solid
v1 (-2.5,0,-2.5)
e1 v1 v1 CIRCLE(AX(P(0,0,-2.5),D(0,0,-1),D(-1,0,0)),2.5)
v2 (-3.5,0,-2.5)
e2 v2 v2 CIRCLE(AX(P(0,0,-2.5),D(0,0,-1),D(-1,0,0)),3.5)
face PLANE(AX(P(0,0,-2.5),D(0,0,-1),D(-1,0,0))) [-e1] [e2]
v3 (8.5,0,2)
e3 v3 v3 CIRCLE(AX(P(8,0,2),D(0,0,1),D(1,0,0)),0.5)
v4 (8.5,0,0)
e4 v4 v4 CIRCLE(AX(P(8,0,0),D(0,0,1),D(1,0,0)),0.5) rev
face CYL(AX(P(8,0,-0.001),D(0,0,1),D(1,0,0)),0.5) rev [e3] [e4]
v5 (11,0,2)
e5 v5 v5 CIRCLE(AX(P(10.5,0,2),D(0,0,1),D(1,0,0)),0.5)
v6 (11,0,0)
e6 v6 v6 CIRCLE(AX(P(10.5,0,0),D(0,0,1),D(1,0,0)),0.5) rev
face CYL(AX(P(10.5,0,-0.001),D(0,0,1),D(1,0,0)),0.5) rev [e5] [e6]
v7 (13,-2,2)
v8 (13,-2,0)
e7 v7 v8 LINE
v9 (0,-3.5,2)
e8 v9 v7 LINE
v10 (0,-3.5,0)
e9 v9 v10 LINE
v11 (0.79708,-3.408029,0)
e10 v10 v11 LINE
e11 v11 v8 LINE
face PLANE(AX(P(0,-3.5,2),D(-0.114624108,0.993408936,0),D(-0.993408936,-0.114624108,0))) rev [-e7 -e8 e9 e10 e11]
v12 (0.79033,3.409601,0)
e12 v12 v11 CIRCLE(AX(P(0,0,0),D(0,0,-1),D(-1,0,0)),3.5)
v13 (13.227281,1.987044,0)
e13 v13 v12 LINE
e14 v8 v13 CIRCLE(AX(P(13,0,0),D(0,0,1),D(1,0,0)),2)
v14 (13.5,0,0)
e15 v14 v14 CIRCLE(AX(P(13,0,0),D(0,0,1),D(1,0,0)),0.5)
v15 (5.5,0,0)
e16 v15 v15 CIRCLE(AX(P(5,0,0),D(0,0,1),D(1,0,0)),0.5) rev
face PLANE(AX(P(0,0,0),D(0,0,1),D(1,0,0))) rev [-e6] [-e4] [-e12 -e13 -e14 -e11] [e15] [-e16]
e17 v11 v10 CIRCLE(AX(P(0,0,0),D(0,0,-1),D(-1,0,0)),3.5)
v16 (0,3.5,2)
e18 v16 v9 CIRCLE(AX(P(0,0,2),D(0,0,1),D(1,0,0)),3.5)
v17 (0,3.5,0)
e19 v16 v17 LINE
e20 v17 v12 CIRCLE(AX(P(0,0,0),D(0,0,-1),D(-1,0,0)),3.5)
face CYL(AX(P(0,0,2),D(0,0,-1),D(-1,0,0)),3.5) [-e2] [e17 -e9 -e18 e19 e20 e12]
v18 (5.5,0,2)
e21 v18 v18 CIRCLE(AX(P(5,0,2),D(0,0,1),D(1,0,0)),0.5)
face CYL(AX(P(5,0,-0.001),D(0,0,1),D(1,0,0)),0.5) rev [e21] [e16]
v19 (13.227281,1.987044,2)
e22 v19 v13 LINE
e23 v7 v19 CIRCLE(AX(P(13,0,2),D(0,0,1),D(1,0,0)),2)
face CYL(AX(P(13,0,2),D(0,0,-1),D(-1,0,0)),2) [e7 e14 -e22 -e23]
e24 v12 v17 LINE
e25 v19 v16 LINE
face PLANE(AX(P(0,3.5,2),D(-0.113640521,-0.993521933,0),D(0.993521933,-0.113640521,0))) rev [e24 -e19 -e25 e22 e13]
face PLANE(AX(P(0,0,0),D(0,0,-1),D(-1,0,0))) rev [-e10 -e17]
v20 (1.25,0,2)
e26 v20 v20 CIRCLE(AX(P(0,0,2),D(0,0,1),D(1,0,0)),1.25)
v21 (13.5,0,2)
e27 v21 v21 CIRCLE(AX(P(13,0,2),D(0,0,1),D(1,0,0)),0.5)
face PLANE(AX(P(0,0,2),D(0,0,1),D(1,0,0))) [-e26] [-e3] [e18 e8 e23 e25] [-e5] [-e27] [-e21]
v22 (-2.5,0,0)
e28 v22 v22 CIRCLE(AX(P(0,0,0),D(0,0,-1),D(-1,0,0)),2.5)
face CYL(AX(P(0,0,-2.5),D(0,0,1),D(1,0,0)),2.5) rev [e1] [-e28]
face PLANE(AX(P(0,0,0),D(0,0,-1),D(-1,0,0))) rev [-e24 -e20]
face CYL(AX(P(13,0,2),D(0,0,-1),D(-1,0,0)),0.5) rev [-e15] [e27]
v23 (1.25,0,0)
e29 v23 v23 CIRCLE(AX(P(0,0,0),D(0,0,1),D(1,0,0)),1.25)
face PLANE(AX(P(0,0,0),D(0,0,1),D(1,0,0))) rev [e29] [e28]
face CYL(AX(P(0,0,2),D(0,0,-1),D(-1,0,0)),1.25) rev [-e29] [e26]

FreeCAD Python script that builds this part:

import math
import FreeCAD as App
import Part
import Sketcher

V = App.Vector
Q = App.Units.Quantity

doc = App.newDocument("Part")
body = doc.addObject("PartDesign::Body", "Body")

sketch1 = doc.addObject("Sketcher::SketchObject", "Sketch")
body.addObject(sketch1)
sketch1.AttachmentSupport = (doc.XY_Plane, [""])
sketch1.MapMode = "FlatFace"
sketch1.addGeometry([
    Part.LineSegment(V(13.227281, 1.987044, 0), V(0, 3.5, 0)),
    Part.ArcOfCircle(Part.Circle(V(0, 0, 0), V(0, 0, 1), 3.5), math.radians(90), math.radians(270)),
    Part.LineSegment(V(0, -3.5, 0), V(13, -2, 0)),
    Part.ArcOfCircle(Part.Circle(V(13, 0, 0), V(0, 0, 1), 2), math.radians(-90), math.radians(83.474781)),
    Part.Circle(V(13, 0, 0), V(0, 0, 1), 0.5),
    Part.Circle(V(0, 0, 0), V(0, 0, 1), 1.25),
], False)
sketch1.addConstraint([
    Sketcher.Constraint("Coincident", 0, 2, 1, 1),
    Sketcher.Constraint("Coincident", 1, 2, 2, 1),
    Sketcher.Constraint("Coincident", 2, 2, 3, 1),
    Sketcher.Constraint("Tangent", 3, 2, 0, 1),
    Sketcher.Constraint("Coincident", 1, 3, -1, 1),
    Sketcher.Constraint("Coincident", 5, 3, -1, 1),
    Sketcher.Constraint("Coincident", 4, 3, 3, 3),
    Sketcher.Constraint("PointOnObject", 3, 3, -1),
    Sketcher.Constraint("PointOnObject", 0, 2, -2),
    Sketcher.Constraint("PointOnObject", 1, 2, -2),
    Sketcher.Constraint("Vertical", 4, 3, 2, 2),
    Sketcher.Constraint("Diameter", 4, Q("1 mm")),
    Sketcher.Constraint("Radius", 3, Q("2 mm")),
    Sketcher.Constraint("Diameter", 5, Q("2.5 mm")),
    Sketcher.Constraint("Radius", 1, Q("3.5 mm")),
    Sketcher.Constraint("DistanceX", -1, 1, 3, 3, Q("13 mm")),
])
pad1 = doc.addObject("PartDesign::Pad", "Pad")
body.addObject(pad1)
pad1.Profile = sketch1
pad1.Length = 2

sketch2 = doc.addObject("Sketcher::SketchObject", "Sketch001")
body.addObject(sketch2)
sketch2.AttachmentSupport = (doc.XY_Plane, [""])
sketch2.MapMode = "FlatFace"
sketch2.AttachmentOffset = App.Placement(V(0, 0, 2), App.Rotation())
sketch2.addGeometry(Part.Circle(V(10.5, 0, 0), V(0, 0, 1), 0.5), False)
sketch2.addConstraint([
    Sketcher.Constraint("PointOnObject", 0, 3, -1),
    Sketcher.Constraint("Diameter", 0, Q("1 mm")),
    Sketcher.Constraint("DistanceX", -1, 1, 0, 3, Q("10.5 mm")),
])
pocket1 = doc.addObject("PartDesign::Pocket", "Pocket")
body.addObject(pocket1)
pocket1.Profile = sketch2
pocket1.Type = "UpToFirst"

sketch3 = doc.addObject("Sketcher::SketchObject", "Sketch002")
body.addObject(sketch3)
sketch3.AttachmentSupport = (doc.XY_Plane, [""])
sketch3.MapMode = "FlatFace"
sketch3.AttachmentOffset = App.Placement(V(0, 0, 2), App.Rotation())
sketch3.addGeometry(Part.Circle(V(8, 0, 0), V(0, 0, 1), 0.5), False)
sketch3.addConstraint([
    Sketcher.Constraint("PointOnObject", 0, 3, -1),
    Sketcher.Constraint("Diameter", 0, Q("1 mm")),
    Sketcher.Constraint("DistanceX", -1, 1, 0, 3, Q("8 mm")),
])
pocket2 = doc.addObject("PartDesign::Pocket", "Pocket001")
body.addObject(pocket2)
pocket2.Profile = sketch3
pocket2.Type = "UpToFirst"

sketch4 = doc.addObject("Sketcher::SketchObject", "Sketch003")
body.addObject(sketch4)
sketch4.AttachmentSupport = (doc.XY_Plane, [""])
sketch4.MapMode = "FlatFace"
sketch4.AttachmentOffset = App.Placement(V(0, 0, 2), App.Rotation())
sketch4.addGeometry(Part.Circle(V(5, 0, 0), V(0, 0, 1), 0.5), False)
sketch4.addConstraint([
    Sketcher.Constraint("PointOnObject", 0, 3, -1),
    Sketcher.Constraint("Diameter", 0, Q("1 mm")),
    Sketcher.Constraint("DistanceX", -1, 1, 0, 3, Q("5 mm")),
])
pocket3 = doc.addObject("PartDesign::Pocket", "Pocket002")
body.addObject(pocket3)
pocket3.Profile = sketch4
pocket3.Type = "UpToFirst"

sketch5 = doc.addObject("Sketcher::SketchObject", "Sketch004")
body.addObject(sketch5)
sketch5.AttachmentSupport = (doc.XY_Plane, [""])
sketch5.MapMode = "FlatFace"
sketch5.AttachmentOffset = App.Placement(V(0, 0, -2.5), App.Rotation())
sketch5.addGeometry([
    Part.Circle(V(0, 0, 0), V(0, 0, 1), 3.5),
    Part.Circle(V(0, 0, 0), V(0, 0, 1), 2.5),
], False)
sketch5.addConstraint([
    Sketcher.Constraint("Coincident", 0, 3, -1, 1),
    Sketcher.Constraint("Coincident", 1, 3, -1, 1),
    Sketcher.Constraint("Diameter", 0, Q("7 mm")),
    Sketcher.Constraint("Diameter", 1, Q("5 mm")),
])
pad2 = doc.addObject("PartDesign::Pad", "Pad001")
body.addObject(pad2)
pad2.Profile = sketch5
pad2.Length = 2.5

doc.recompute()
